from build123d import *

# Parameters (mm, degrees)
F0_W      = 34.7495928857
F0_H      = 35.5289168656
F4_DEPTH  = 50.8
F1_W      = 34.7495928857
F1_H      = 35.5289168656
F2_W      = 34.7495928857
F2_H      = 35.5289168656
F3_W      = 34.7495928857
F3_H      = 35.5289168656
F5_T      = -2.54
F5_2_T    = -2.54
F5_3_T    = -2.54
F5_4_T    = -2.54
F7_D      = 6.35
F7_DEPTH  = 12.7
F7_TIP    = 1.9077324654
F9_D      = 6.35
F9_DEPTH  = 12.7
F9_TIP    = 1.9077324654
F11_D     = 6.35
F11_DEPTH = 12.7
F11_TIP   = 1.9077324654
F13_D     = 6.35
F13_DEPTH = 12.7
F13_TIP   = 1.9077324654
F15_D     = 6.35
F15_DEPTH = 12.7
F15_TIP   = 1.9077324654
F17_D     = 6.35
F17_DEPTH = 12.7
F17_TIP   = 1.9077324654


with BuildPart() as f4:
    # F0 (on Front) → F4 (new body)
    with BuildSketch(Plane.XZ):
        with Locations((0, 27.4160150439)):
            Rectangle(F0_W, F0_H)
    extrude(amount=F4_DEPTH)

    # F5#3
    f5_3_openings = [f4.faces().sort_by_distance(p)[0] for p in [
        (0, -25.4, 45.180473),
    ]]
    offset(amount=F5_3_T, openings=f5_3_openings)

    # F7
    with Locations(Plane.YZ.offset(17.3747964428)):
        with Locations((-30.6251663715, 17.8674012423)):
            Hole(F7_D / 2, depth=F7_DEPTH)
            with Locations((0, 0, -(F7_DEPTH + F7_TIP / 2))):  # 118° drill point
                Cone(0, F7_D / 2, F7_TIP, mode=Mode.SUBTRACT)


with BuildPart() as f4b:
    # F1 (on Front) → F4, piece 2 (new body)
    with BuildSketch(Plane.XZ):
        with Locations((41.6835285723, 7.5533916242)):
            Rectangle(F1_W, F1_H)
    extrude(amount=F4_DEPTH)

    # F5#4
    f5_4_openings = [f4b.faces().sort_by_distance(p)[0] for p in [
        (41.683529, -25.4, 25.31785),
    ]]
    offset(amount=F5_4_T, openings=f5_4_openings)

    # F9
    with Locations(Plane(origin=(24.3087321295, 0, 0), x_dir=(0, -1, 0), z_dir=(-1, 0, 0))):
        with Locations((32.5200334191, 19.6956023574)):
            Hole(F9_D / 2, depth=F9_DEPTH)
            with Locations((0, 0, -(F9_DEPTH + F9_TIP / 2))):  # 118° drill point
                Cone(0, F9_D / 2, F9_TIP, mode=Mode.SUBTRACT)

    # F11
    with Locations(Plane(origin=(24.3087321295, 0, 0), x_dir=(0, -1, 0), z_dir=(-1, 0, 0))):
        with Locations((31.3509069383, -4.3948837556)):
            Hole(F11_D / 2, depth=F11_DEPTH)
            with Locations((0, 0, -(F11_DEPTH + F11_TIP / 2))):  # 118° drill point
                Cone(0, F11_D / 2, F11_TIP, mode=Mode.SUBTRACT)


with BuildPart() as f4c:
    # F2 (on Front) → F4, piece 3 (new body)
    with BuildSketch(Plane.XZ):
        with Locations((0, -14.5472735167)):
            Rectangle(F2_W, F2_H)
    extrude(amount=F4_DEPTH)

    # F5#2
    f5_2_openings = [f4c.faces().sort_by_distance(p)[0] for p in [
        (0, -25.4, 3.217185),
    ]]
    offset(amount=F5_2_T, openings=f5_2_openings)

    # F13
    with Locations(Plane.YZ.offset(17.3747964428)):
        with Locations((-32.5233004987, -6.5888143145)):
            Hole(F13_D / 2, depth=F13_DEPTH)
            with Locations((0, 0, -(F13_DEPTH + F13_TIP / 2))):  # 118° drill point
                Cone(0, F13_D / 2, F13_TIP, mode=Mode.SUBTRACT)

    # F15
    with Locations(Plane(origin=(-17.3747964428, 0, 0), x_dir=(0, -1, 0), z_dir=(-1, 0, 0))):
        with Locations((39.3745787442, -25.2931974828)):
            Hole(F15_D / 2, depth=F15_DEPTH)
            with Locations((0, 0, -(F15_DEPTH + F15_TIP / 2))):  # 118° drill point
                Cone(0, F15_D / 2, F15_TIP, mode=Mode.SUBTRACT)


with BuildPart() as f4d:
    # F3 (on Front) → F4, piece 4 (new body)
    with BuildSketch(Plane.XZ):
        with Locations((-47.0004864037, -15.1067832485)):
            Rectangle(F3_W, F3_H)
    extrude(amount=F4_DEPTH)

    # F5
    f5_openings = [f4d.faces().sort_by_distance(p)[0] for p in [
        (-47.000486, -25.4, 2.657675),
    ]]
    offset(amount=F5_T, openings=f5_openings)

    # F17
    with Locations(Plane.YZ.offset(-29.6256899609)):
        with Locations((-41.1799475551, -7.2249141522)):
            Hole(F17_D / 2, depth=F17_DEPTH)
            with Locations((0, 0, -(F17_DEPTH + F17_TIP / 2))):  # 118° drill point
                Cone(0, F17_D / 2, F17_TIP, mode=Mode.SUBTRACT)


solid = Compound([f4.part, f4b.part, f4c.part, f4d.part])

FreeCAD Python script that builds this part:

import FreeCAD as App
import Part
import Sketcher
from FreeCAD import Vector
Q = App.Units.Quantity


def faces_at(feature, points):
    """Names of the faces that lie closest to the given points."""
    faces = feature.Shape.Faces
    near = lambda p: min(range(len(faces)), key=lambda i: faces[i].distToShape(Part.Vertex(*p))[0])
    return sorted({f"Face{near(p) + 1}" for p in points})


def add_polygon(sketch, points):
    """Adds a closed chain of lines whose ends are joined by coincident constraints."""
    first, n = sketch.GeometryCount, len(points)
    for a, b in zip(points, points[1:] + points[:1]):
        sketch.addGeometry(Part.LineSegment(App.Vector(*a, 0), App.Vector(*b, 0)), False)
    for i in range(n):
        sketch.addConstraint(Sketcher.Constraint("Coincident", first + i, 2, first + (i + 1) % n, 1))

doc = App.newDocument("Part")
params = doc.addObject("Spreadsheet::Sheet", "Params")
for row, (alias, value) in enumerate([
    ("pad1_length", "2 in"),
    ("thickness_wall", "0.1 in"),
    ("sketch2_diameter", "0.25 in"),
    ("hole_diameter", "0.25 in"),
    ("hole_depth", "0.5 in"),
    ("pad2_length", "2 in"),
    ("thickness2_wall", "0.1 in"),
    ("sketch4_diameter", "0.25 in"),
    ("hole2_diameter", "0.25 in"),
    ("hole2_depth", "0.5 in"),
    ("sketch5_diameter", "0.25 in"),
    ("hole3_diameter", "0.25 in"),
    ("hole3_depth", "0.5 in"),
    ("pad3_length", "2 in"),
    ("thickness3_wall", "0.1 in"),
    ("sketch7_diameter", "0.25 in"),
    ("hole4_diameter", "0.25 in"),
    ("hole4_depth", "0.5 in"),
    ("sketch8_diameter", "0.25 in"),
    ("hole5_diameter", "0.25 in"),
    ("hole5_depth", "0.5 in"),
    ("pad4_length", "2 in"),
    ("thickness4_wall", "0.1 in"),
    ("sketch10_diameter", "0.25 in"),
    ("hole6_diameter", "0.25 in"),
    ("hole6_depth", "0.5 in"),
], start=1):
    params.set(f"A{row}", alias)
    params.set(f"B{row}", "=" + value)
    params.setAlias(f"B{row}", alias)

body = doc.addObject("PartDesign::Body", "Body")

sketch1 = doc.addObject("Sketcher::SketchObject", "Sketch")
body.addObject(sketch1)
sketch1.AttachmentSupport = (doc.XZ_Plane, [""])
sketch1.MapMode = "FlatFace"
add_polygon(sketch1, [(-17, 45), (-17, 10), (17, 10), (17, 45)])
sketch1.addConstraint([
    Sketcher.Constraint("Vertical", 0),
    Sketcher.Constraint("Horizontal", 1),
    Sketcher.Constraint("Vertical", 2),
    Sketcher.Constraint("Horizontal", 3),
    Sketcher.Constraint("DistanceX", 1, 1, 1, 2, 34.749593),
    Sketcher.Constraint("DistanceY", 0, 2, 0, 1, 35.528917),
    Sketcher.Constraint("DistanceX", 0, 2, -1, 1, 17.374796),
    Sketcher.Constraint("DistanceY", -1, 1, 0, 2, 9.651557),
])
pad1 = doc.addObject("PartDesign::Pad", "Pad")
body.addObject(pad1)
pad1.Profile = sketch1
pad1.setExpression("Length", "Params.pad1_length")
doc.recompute()

thickness = doc.addObject("PartDesign::Thickness", "Thickness")
body.addObject(thickness)
thickness.Base = (pad1, faces_at(pad1, [(0, -25.4, 45.18)]))
thickness.setExpression("Value", "Params.thickness_wall")
thickness.Reversed = True
thickness.Join = "Arc"

sketch2 = doc.addObject("Sketcher::SketchObject", "Sketch001")
body.addObject(sketch2)
sketch2.AttachmentSupport = (doc.YZ_Plane, [""])
sketch2.MapMode = "FlatFace"
sketch2.AttachmentOffset = App.Placement(Vector(0, 0, 17.374796), App.Rotation())
sketch2.addGeometry(Part.Circle(Vector(-30.6, 17.9, 0), Vector(0, 0, 1), 3.2), False)
sketch2.addConstraint([
    Sketcher.Constraint("Diameter", 0, Q("0.25 in")),
    Sketcher.Constraint("DistanceY", -1, 1, 0, 3, 17.867401),
    Sketcher.Constraint("DistanceX", 0, 3, -1, 1, 30.625166),
])
sketch2.setExpression("Constraints[0]", "Params.sketch2_diameter")
doc.recompute()
hole = doc.addObject("PartDesign::Hole", "Hole")
body.addObject(hole)
hole.Profile = sketch2
hole.ThreadType = "None"
hole.setExpression("Diameter", "Params.hole_diameter")
hole.DepthType = "Dimension"
hole.setExpression("Depth", "Params.hole_depth")
hole.DrillPoint = "Angled"
hole.DrillPointAngle = 118
body2 = doc.addObject("PartDesign::Body", "Body001")

sketch3 = doc.addObject("Sketcher::SketchObject", "Sketch002")
body2.addObject(sketch3)
sketch3.AttachmentSupport = (doc.getObject("XZ_Plane001"), [""])
sketch3.MapMode = "FlatFace"
add_polygon(sketch3, [(24, 25), (24, -10), (59, -10), (59, 25)])
sketch3.addConstraint([
    Sketcher.Constraint("Vertical", 0),
    Sketcher.Constraint("Horizontal", 1),
    Sketcher.Constraint("Vertical", 2),
    Sketcher.Constraint("Horizontal", 3),
    Sketcher.Constraint("DistanceX", 1, 1, 1, 2, 34.749593),
    Sketcher.Constraint("DistanceY", 0, 2, 0, 1, 35.528917),
    Sketcher.Constraint("DistanceY", -1, 1, 2, 2, 25.31785),
    Sketcher.Constraint("DistanceX", -1, 1, 0, 2, 24.308732),
])
pad2 = doc.addObject("PartDesign::Pad", "Pad001")
body2.addObject(pad2)
pad2.Profile = sketch3
pad2.setExpression("Length", "Params.pad2_length")
doc.recompute()

thickness2 = doc.addObject("PartDesign::Thickness", "Thickness001")
body2.addObject(thickness2)
thickness2.Base = (pad2, faces_at(pad2, [(41.684, -25.4, 25.318)]))
thickness2.setExpression("Value", "Params.thickness2_wall")
thickness2.Reversed = True
thickness2.Join = "Arc"

sketch4 = doc.addObject("Sketcher::SketchObject", "Sketch003")
body2.addObject(sketch4)
sketch4.AttachmentSupport = (doc.getObject("YZ_Plane001"), [""])
sketch4.MapMode = "FlatFace"
sketch4.AttachmentOffset = App.Placement(Vector(0, 0, 24.308732), App.Rotation())
sketch4.addGeometry(Part.Circle(Vector(-32.5, 19.7, 0), Vector(0, 0, 1), 3.2), False)
sketch4.addConstraint([
    Sketcher.Constraint("Diameter", 0, Q("0.25 in")),
    Sketcher.Constraint("DistanceX", 0, 3, -1, 1, 32.520033),
    Sketcher.Constraint("DistanceY", -1, 1, 0, 3, 19.695602),
])
sketch4.setExpression("Constraints[0]", "Params.sketch4_diameter")
doc.recompute()
hole2 = doc.addObject("PartDesign::Hole", "Hole001")
body2.addObject(hole2)
hole2.Profile = sketch4
hole2.ThreadType = "None"
hole2.setExpression("Diameter", "Params.hole2_diameter")
hole2.DepthType = "Dimension"
hole2.setExpression("Depth", "Params.hole2_depth")
hole2.DrillPoint = "Angled"
hole2.DrillPointAngle = 118
hole2.Reversed = True

sketch5 = doc.addObject("Sketcher::SketchObject", "Sketch004")
body2.addObject(sketch5)
sketch5.AttachmentSupport = (doc.getObject("YZ_Plane001"), [""])
sketch5.MapMode = "FlatFace"
sketch5.AttachmentOffset = App.Placement(Vector(0, 0, 24.308732), App.Rotation())
sketch5.addGeometry(Part.Circle(Vector(-31.4, -4.4, 0), Vector(0, 0, 1), 3.2), False)
sketch5.addConstraint([
    Sketcher.Constraint("Diameter", 0, Q("0.25 in")),
    Sketcher.Constraint("DistanceX", 0, 3, -1, 1, 31.350907),
    Sketcher.Constraint("DistanceY", 0, 3, -1, 1, 4.394884),
])
sketch5.setExpression("Constraints[0]", "Params.sketch5_diameter")
doc.recompute()
hole3 = doc.addObject("PartDesign::Hole", "Hole002")
body2.addObject(hole3)
hole3.Profile = sketch5
hole3.ThreadType = "None"
hole3.setExpression("Diameter", "Params.hole3_diameter")
hole3.DepthType = "Dimension"
hole3.setExpression("Depth", "Params.hole3_depth")
hole3.DrillPoint = "Angled"
hole3.DrillPointAngle = 118
hole3.Reversed = True
body3 = doc.addObject("PartDesign::Body", "Body002")

sketch6 = doc.addObject("Sketcher::SketchObject", "Sketch005")
body3.addObject(sketch6)
sketch6.AttachmentSupport = (doc.getObject("XZ_Plane002"), [""])
sketch6.MapMode = "FlatFace"
add_polygon(sketch6, [(-17, 3), (-17, -32), (17, -32), (17, 3)])
sketch6.addConstraint([
    Sketcher.Constraint("Vertical", 0),
    Sketcher.Constraint("Horizontal", 1),
    Sketcher.Constraint("Vertical", 2),
    Sketcher.Constraint("Horizontal", 3),
    Sketcher.Constraint("DistanceX", 1, 1, 1, 2, 34.749593),
    Sketcher.Constraint("DistanceY", 0, 2, 0, 1, 35.528917),
    Sketcher.Constraint("DistanceY", 0, 2, -1, 1, 32.311732),
    Sketcher.Constraint("DistanceX", 0, 2, -1, 1, 17.374796),
])
pad3 = doc.addObject("PartDesign::Pad", "Pad002")
body3.addObject(pad3)
pad3.Profile = sketch6
pad3.setExpression("Length", "Params.pad3_length")
doc.recompute()

thickness3 = doc.addObject("PartDesign::Thickness", "Thickness002")
body3.addObject(thickness3)
thickness3.Base = (pad3, faces_at(pad3, [(0, -25.4, 3.217)]))
thickness3.setExpression("Value", "Params.thickness3_wall")
thickness3.Reversed = True
thickness3.Join = "Arc"

sketch7 = doc.addObject("Sketcher::SketchObject", "Sketch006")
body3.addObject(sketch7)
sketch7.AttachmentSupport = (doc.getObject("YZ_Plane002"), [""])
sketch7.MapMode = "FlatFace"
sketch7.AttachmentOffset = App.Placement(Vector(0, 0, 17.374796), App.Rotation())
sketch7.addGeometry(Part.Circle(Vector(-32.5, -6.6, 0), Vector(0, 0, 1), 3.2), False)
sketch7.addConstraint([
    Sketcher.Constraint("Diameter", 0, Q("0.25 in")),
    Sketcher.Constraint("DistanceX", 0, 3, -1, 1, 32.5233),
    Sketcher.Constraint("DistanceY", 0, 3, -1, 1, 6.588814),
])
sketch7.setExpression("Constraints[0]", "Params.sketch7_diameter")
doc.recompute()
hole4 = doc.addObject("PartDesign::Hole", "Hole003")
body3.addObject(hole4)
hole4.Profile = sketch7
hole4.ThreadType = "None"
hole4.setExpression("Diameter", "Params.hole4_diameter")
hole4.DepthType = "Dimension"
hole4.setExpression("Depth", "Params.hole4_depth")
hole4.DrillPoint = "Angled"
hole4.DrillPointAngle = 118

sketch8 = doc.addObject("Sketcher::SketchObject", "Sketch007")
body3.addObject(sketch8)
sketch8.AttachmentSupport = (doc.getObject("YZ_Plane002"), [""])
sketch8.MapMode = "FlatFace"
sketch8.AttachmentOffset = App.Placement(Vector(0, 0, -17.374796), App.Rotation())
sketch8.addGeometry(Part.Circle(Vector(-39.4, -25.3, 0), Vector(0, 0, 1), 3.2), False)
sketch8.addConstraint([
    Sketcher.Constraint("Diameter", 0, Q("0.25 in")),
    Sketcher.Constraint("DistanceX", 0, 3, -1, 1, 39.374579),
    Sketcher.Constraint("DistanceY", 0, 3, -1, 1, 25.293197),
])
sketch8.setExpression("Constraints[0]", "Params.sketch8_diameter")
doc.recompute()
hole5 = doc.addObject("PartDesign::Hole", "Hole004")
body3.addObject(hole5)
hole5.Profile = sketch8
hole5.ThreadType = "None"
hole5.setExpression("Diameter", "Params.hole5_diameter")
hole5.DepthType = "Dimension"
hole5.setExpression("Depth", "Params.hole5_depth")
hole5.DrillPoint = "Angled"
hole5.DrillPointAngle = 118
hole5.Reversed = True
body4 = doc.addObject("PartDesign::Body", "Body003")

sketch9 = doc.addObject("Sketcher::SketchObject", "Sketch008")
body4.addObject(sketch9)
sketch9.AttachmentSupport = (doc.getObject("XZ_Plane003"), [""])
sketch9.MapMode = "FlatFace"
add_polygon(sketch9, [(-64, 3), (-64, -33), (-30, -33), (-30, 3)])
sketch9.addConstraint([
    Sketcher.Constraint("Vertical", 0),
    Sketcher.Constraint("Horizontal", 1),
    Sketcher.Constraint("Vertical", 2),
    Sketcher.Constraint("Horizontal", 3),
    Sketcher.Constraint("DistanceX", 1, 1, 1, 2, 34.749593),
    Sketcher.Constraint("DistanceY", 0, 2, 0, 1, 35.528917),
    Sketcher.Constraint("DistanceY", 0, 2, -1, 1, 32.871242),
    Sketcher.Constraint("DistanceX", 1, 2, -1, 1, 29.62569),
])
pad4 = doc.addObject("PartDesign::Pad", "Pad003")
body4.addObject(pad4)
pad4.Profile = sketch9
pad4.setExpression("Length", "Params.pad4_length")
doc.recompute()

thickness4 = doc.addObject("PartDesign::Thickness", "Thickness003")
body4.addObject(thickness4)
thickness4.Base = (pad4, faces_at(pad4, [(-47, -25.4, 2.658)]))
thickness4.setExpression("Value", "Params.thickness4_wall")
thickness4.Reversed = True
thickness4.Join = "Arc"

sketch10 = doc.addObject("Sketcher::SketchObject", "Sketch009")
body4.addObject(sketch10)
sketch10.AttachmentSupport = (doc.getObject("YZ_Plane003"), [""])
sketch10.MapMode = "FlatFace"
sketch10.AttachmentOffset = App.Placement(Vector(0, 0, -29.62569), App.Rotation())
sketch10.addGeometry(Part.Circle(Vector(-41.2, -7.2, 0), Vector(0, 0, 1), 3.2), False)
sketch10.addConstraint([
    Sketcher.Constraint("Diameter", 0, Q("0.25 in")),
    Sketcher.Constraint("DistanceX", 0, 3, -1, 1, 41.179948),
    Sketcher.Constraint("DistanceY", 0, 3, -1, 1, 7.224914),
])
sketch10.setExpression("Constraints[0]", "Params.sketch10_diameter")
doc.recompute()
hole6 = doc.addObject("PartDesign::Hole", "Hole005")
body4.addObject(hole6)
hole6.Profile = sketch10
hole6.ThreadType = "None"
hole6.setExpression("Diameter", "Params.hole6_diameter")
hole6.DepthType = "Dimension"
hole6.setExpression("Depth", "Params.hole6_depth")
hole6.DrillPoint = "Angled"
hole6.DrillPointAngle = 118

doc.recompute()
